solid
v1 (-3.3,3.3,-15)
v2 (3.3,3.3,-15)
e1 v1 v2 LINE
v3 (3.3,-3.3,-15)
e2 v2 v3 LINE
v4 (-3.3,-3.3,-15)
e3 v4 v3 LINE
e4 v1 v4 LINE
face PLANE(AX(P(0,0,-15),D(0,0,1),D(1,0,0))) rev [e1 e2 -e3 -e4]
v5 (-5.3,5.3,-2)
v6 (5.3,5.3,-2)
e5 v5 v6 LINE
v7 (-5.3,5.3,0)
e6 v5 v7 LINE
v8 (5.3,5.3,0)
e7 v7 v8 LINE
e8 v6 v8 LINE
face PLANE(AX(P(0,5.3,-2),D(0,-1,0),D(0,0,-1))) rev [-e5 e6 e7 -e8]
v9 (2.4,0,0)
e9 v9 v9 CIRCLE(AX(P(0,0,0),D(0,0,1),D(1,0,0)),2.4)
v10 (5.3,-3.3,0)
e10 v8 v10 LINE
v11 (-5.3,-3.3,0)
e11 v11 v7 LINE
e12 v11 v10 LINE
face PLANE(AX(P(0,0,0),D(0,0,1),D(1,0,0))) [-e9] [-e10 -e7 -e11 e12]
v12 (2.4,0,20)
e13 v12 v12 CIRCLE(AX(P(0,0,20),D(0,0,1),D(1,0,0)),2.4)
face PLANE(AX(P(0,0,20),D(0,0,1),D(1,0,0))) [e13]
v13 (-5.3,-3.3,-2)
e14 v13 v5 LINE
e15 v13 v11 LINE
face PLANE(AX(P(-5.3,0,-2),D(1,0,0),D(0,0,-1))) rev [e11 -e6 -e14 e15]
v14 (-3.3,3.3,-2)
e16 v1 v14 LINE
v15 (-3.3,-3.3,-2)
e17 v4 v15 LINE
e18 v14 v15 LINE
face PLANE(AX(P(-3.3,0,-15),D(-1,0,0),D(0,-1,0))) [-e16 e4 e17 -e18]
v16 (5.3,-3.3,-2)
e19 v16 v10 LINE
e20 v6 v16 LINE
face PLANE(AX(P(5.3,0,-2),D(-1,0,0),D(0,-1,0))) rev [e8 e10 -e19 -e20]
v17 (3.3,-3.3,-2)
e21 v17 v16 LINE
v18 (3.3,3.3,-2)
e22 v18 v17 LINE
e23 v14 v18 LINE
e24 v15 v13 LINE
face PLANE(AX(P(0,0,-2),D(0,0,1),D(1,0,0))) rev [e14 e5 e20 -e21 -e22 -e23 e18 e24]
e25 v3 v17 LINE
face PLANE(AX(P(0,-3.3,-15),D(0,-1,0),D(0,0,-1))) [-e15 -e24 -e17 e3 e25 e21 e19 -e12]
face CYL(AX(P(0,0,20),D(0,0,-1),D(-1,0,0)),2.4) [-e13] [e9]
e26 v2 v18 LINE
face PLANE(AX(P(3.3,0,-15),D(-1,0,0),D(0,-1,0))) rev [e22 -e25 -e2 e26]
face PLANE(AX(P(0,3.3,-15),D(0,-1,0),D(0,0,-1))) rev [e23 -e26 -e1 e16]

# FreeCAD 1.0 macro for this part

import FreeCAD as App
import Part
import Sketcher
from FreeCAD import Vector


def add_polygon(sketch, points):
    """Adds a closed chain of lines whose ends are joined by coincident constraints."""
    first, n = sketch.GeometryCount, len(points)
    for a, b in zip(points, points[1:] + points[:1]):
        sketch.addGeometry(Part.LineSegment(App.Vector(*a, 0), App.Vector(*b, 0)), False)
    for i in range(n):
        sketch.addConstraint(Sketcher.Constraint("Coincident", first + i, 2, first + (i + 1) % n, 1))

doc = App.newDocument("Part")
body = doc.addObject("PartDesign::Body", "Body")

sketch1 = body.newObject("Sketcher::SketchObject", "Sketch")
sketch1.AttachmentSupport = (doc.getObject("XY_Plane"), [""])
sketch1.MapMode = "FlatFace"
sketch1.addGeometry(Part.Circle(Vector(0, 0, 0), Vector(0, 0, 1), 2.4), False)
sketch1.addConstraint(Sketcher.Constraint("Coincident", 0, 3, -1, 1))
sketch1.addConstraint(Sketcher.Constraint("Diameter", 0, 4.8))
pad1 = body.newObject("PartDesign::Pad", "Pad")
pad1.Profile = sketch1
pad1.Length = 20

sketch2 = body.newObject("Sketcher::SketchObject", "Sketch001")
sketch2.AttachmentSupport = (doc.getObject("XY_Plane"), [""])
sketch2.MapMode = "FlatFace"
sketch2.AttachmentOffset = App.Placement(Vector(0, 0, -15), App.Rotation())
add_polygon(sketch2, [(-3.3, 3.3), (-3.3, -3.3), (3.3, -3.3), (3.3, 3.3)])
sketch2.addConstraint(Sketcher.Constraint("Vertical", 0))
sketch2.addConstraint(Sketcher.Constraint("Horizontal", 1))
sketch2.addConstraint(Sketcher.Constraint("Vertical", 2))
sketch2.addConstraint(Sketcher.Constraint("Horizontal", 3))
sketch2.addConstraint(Sketcher.Constraint("Symmetric", 0, 2, 2, 2, -1, 1))
sketch2.addConstraint(Sketcher.Constraint("Equal", 3, 0))
sketch2.addConstraint(Sketcher.Constraint("DistanceX", 1, 1, 1, 2, 6.6))
pad2 = body.newObject("PartDesign::Pad", "Pad001")
pad2.Profile = sketch2
pad2.Length = 15

sketch3 = body.newObject("Sketcher::SketchObject", "Sketch002")
sketch3.AttachmentSupport = (doc.getObject("XY_Plane"), [""])
sketch3.MapMode = "FlatFace"
add_polygon(sketch3, [(3.3, 3.3), (3.3, -3.3), (5.3, -3.3), (5.3, 5.3), (-5.3, 5.3), (-5.3, -3.3), (-3.3, -3.3), (-3.3, 3.3)])
sketch3.addConstraint(Sketcher.Constraint("Vertical", 0))
sketch3.addConstraint(Sketcher.Constraint("Horizontal", 1))
sketch3.addConstraint(Sketcher.Constraint("Vertical", 2))
sketch3.addConstraint(Sketcher.Constraint("Horizontal", 3))
sketch3.addConstraint(Sketcher.Constraint("Vertical", 4))
sketch3.addConstraint(Sketcher.Constraint("Horizontal", 5))
sketch3.addConstraint(Sketcher.Constraint("Vertical", 6))
sketch3.addConstraint(Sketcher.Constraint("Horizontal", 7))
sketch3.addConstraint(Sketcher.Constraint("Symmetric", 0, 2, 6, 2, -1, 1))
sketch3.addConstraint(Sketcher.Constraint("Symmetric", 1, 2, 4, 2, -2))
sketch3.addConstraint(Sketcher.Constraint("Equal", 7, 0))
sketch3.addConstraint(Sketcher.Constraint("DistanceX", 1, 1, 1, 2, 2.0))
sketch3.addConstraint(Sketcher.Constraint("DistanceX", 3, 2, 3, 1, 10.6))
sketch3.addConstraint(Sketcher.Constraint("DistanceY", 2, 1, 2, 2, 8.6))
pad3 = body.newObject("PartDesign::Pad", "Pad002")
pad3.Profile = sketch3
pad3.Length = 2
pad3.Reversed = True

doc.recompute()
